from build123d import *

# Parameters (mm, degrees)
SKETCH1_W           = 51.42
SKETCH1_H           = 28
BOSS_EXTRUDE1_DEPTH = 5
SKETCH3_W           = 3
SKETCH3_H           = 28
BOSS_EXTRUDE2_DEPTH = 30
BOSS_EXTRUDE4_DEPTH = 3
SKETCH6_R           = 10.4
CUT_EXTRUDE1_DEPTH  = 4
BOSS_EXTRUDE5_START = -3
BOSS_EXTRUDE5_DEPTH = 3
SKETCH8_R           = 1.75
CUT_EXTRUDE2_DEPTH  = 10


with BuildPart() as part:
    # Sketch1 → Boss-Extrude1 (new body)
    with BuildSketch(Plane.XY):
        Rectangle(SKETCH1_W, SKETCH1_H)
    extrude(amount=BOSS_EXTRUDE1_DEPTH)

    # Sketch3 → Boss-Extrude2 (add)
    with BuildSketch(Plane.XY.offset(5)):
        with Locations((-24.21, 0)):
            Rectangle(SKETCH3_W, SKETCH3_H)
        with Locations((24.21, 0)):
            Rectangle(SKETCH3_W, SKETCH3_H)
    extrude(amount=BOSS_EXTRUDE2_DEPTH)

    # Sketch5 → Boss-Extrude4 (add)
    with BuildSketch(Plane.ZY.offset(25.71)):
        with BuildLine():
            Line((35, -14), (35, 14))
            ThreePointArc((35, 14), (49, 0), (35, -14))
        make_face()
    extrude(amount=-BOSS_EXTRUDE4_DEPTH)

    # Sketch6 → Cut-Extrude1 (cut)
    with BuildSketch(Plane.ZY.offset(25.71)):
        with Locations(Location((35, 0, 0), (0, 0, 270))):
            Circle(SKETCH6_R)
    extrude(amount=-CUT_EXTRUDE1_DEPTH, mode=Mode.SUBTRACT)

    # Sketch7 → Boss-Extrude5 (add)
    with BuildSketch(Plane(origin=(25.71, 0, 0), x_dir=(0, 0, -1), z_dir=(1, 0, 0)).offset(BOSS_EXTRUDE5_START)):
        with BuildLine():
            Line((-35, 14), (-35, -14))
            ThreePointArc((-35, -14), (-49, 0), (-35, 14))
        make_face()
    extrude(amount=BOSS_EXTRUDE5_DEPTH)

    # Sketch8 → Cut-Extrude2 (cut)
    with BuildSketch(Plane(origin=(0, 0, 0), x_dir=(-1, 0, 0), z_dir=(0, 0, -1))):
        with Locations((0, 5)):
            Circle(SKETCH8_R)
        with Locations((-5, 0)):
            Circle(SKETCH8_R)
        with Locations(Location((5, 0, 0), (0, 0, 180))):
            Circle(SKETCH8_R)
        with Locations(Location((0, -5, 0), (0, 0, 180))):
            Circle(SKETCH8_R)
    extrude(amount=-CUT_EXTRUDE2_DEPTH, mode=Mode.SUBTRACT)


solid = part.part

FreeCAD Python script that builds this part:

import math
import FreeCAD as App
import Part
import Sketcher
Q = App.Units.Quantity


def add_polygon(sketch, points):
    """Adds a closed chain of lines whose ends are joined by coincident constraints."""
    first, n = sketch.GeometryCount, len(points)
    for a, b in zip(points, points[1:] + points[:1]):
        sketch.addGeometry(Part.LineSegment(App.Vector(*a, 0), App.Vector(*b, 0)), False)
    for i in range(n):
        sketch.addConstraint(Sketcher.Constraint("Coincident", first + i, 2, first + (i + 1) % n, 1))

doc = App.newDocument("Part")
params = doc.addObject("Spreadsheet::Sheet", "Params")
for row, (alias, value) in enumerate([
    ("sketch1_height", "28 mm"),
    ("sketch1_width", "51.42 mm"),
    ("pad1_length", "5 mm"),
    ("sketch2_width", "3 mm"),
    ("sketch2_height", "28 mm"),
    ("pad2_length", "30 mm"),
    ("sketch3_radius", "14 mm"),
    ("pad3_length", "3 mm"),
    ("sketch4_diameter", "20.8 mm"),
    ("pocket1_length", "4 mm"),
    ("sketch5_radius", "14 mm"),
    ("pad4_length", "3 mm"),
    ("sketch6_diameter", "3.5 mm"),
    ("pocket2_length", "10 mm"),
], start=1):
    params.set(f"A{row}", alias)
    params.set(f"B{row}", "=" + value)
    params.setAlias(f"B{row}", alias)

body = doc.addObject("PartDesign::Body", "Body")

sketch1 = body.newObject("Sketcher::SketchObject", "Sketch")
sketch1.AttachmentSupport = (doc.getObject("XY_Plane"), [""])
sketch1.MapMode = "FlatFace"
add_polygon(sketch1, [(-26, 14), (-26, -14), (26, -14), (26, 14)])
sketch1.addConstraint([
    Sketcher.Constraint("Vertical", 0),
    Sketcher.Constraint("Horizontal", 1),
    Sketcher.Constraint("Vertical", 2),
    Sketcher.Constraint("Horizontal", 3),
    Sketcher.Constraint("Symmetric", 0, 2, 2, 2, -1, 1),
    Sketcher.Constraint("DistanceY", 0, 2, 0, 1, Q("28 mm")),
    Sketcher.Constraint("DistanceX", 1, 1, 1, 2, Q("51.42 mm")),
])
sketch1.setExpression("Constraints[9]", "Params.sketch1_height")
sketch1.setExpression("Constraints[10]", "Params.sketch1_width")
pad1 = body.newObject("PartDesign::Pad", "Pad")
pad1.Profile = sketch1
pad1.setExpression("Length", "Params.pad1_length")

sketch2 = body.newObject("Sketcher::SketchObject", "Sketch001")
sketch2.AttachmentSupport = (doc.getObject("XY_Plane"), [""])
sketch2.MapMode = "FlatFace"
sketch2.AttachmentOffset = App.Placement(App.Vector(0, 0, 5), App.Rotation())
add_polygon(sketch2, [(-25.7, 14), (-25.7, -14), (-22.7, -14), (-22.7, 14)])
add_polygon(sketch2, [(22.7, 14), (22.7, -14), (25.7, -14), (25.7, 14)])
sketch2.addConstraint([
    Sketcher.Constraint("Vertical", 0),
    Sketcher.Constraint("Horizontal", 1),
    Sketcher.Constraint("Vertical", 2),
    Sketcher.Constraint("Horizontal", 3),
    Sketcher.Constraint("Vertical", 4),
    Sketcher.Constraint("Horizontal", 5),
    Sketcher.Constraint("Vertical", 6),
    Sketcher.Constraint("Horizontal", 7),
    Sketcher.Constraint("Symmetric", 2, 2, 4, 2, -1, 1),
    Sketcher.Constraint("Symmetric", 0, 2, 6, 2, -1, 1),
    Sketcher.Constraint("Horizontal", 1, 2, 4, 2),
    Sketcher.Constraint("DistanceX", 1, 1, 1, 2, Q("3 mm")),
    Sketcher.Constraint("DistanceY", 0, 2, 0, 1, Q("28 mm")),
    Sketcher.Constraint("DistanceX", 0, 2, -1, 1, Q("25.71 mm")),
])
sketch2.setExpression("Constraints[19]", "Params.sketch2_width")
sketch2.setExpression("Constraints[20]", "Params.sketch2_height")
pad2 = body.newObject("PartDesign::Pad", "Pad001")
pad2.Profile = sketch2
pad2.setExpression("Length", "Params.pad2_length")

sketch3 = body.newObject("Sketcher::SketchObject", "Sketch002")
sketch3.AttachmentSupport = (doc.getObject("YZ_Plane"), [""])
sketch3.MapMode = "FlatFace"
sketch3.AttachmentOffset = App.Placement(App.Vector(0, 0, -25.71), App.Rotation())
sketch3.addGeometry([
    Part.LineSegment(App.Vector(14, 35, 0), App.Vector(-14, 35, 0)),
    Part.ArcOfCircle(Part.Circle(App.Vector(0, 35, 0), App.Vector(0, 0, 1), 14), math.radians(0), math.radians(180)),
], False)
sketch3.addConstraint([
    Sketcher.Constraint("Coincident", 0, 1, 1, 1),
    Sketcher.Constraint("Coincident", 1, 2, 0, 2),
    Sketcher.Constraint("Horizontal", 0),
    Sketcher.Constraint("PointOnObject", 1, 3, -2),
    Sketcher.Constraint("Horizontal", 1, 3, 0, 1),
    Sketcher.Constraint("Radius", 1, Q("14 mm")),
    Sketcher.Constraint("DistanceY", -1, 1, 1, 3, Q("35 mm")),
])
sketch3.setExpression("Constraints[5]", "Params.sketch3_radius")
pad3 = body.newObject("PartDesign::Pad", "Pad002")
pad3.Profile = sketch3
pad3.setExpression("Length", "Params.pad3_length")

sketch4 = body.newObject("Sketcher::SketchObject", "Sketch003")
sketch4.AttachmentSupport = (doc.getObject("YZ_Plane"), [""])
sketch4.MapMode = "FlatFace"
sketch4.AttachmentOffset = App.Placement(App.Vector(0, 0, -25.71), App.Rotation())
sketch4.addGeometry(Part.Circle(App.Vector(0, 35, 0), App.Vector(0, 0, 1), 10), False)
sketch4.addConstraint([
    Sketcher.Constraint("PointOnObject", 0, 3, -2),
    Sketcher.Constraint("Diameter", 0, Q("20.8 mm")),
    Sketcher.Constraint("DistanceY", -1, 1, 0, 3, Q("35 mm")),
])
sketch4.setExpression("Constraints[1]", "Params.sketch4_diameter")
pocket1 = body.newObject("PartDesign::Pocket", "Pocket")
pocket1.Profile = sketch4
pocket1.setExpression("Length", "Params.pocket1_length")
pocket1.Reversed = True

sketch5 = body.newObject("Sketcher::SketchObject", "Sketch004")
sketch5.AttachmentSupport = (doc.getObject("YZ_Plane"), [""])
sketch5.MapMode = "FlatFace"
sketch5.AttachmentOffset = App.Placement(App.Vector(0, 0, 22.71), App.Rotation())
sketch5.addGeometry([
    Part.LineSegment(App.Vector(-14, 35, 0), App.Vector(14, 35, 0)),
    Part.ArcOfCircle(Part.Circle(App.Vector(0, 35, 0), App.Vector(0, 0, 1), 14), math.radians(0), math.radians(180)),
], False)
sketch5.addConstraint([
    Sketcher.Constraint("Coincident", 0, 1, 1, 2),
    Sketcher.Constraint("Coincident", 1, 1, 0, 2),
    Sketcher.Constraint("Horizontal", 0),
    Sketcher.Constraint("PointOnObject", 1, 3, -2),
    Sketcher.Constraint("Horizontal", 1, 3, 0, 1),
    Sketcher.Constraint("Radius", 1, Q("14 mm")),
    Sketcher.Constraint("DistanceY", -1, 1, 1, 3, Q("35 mm")),
])
sketch5.setExpression("Constraints[5]", "Params.sketch5_radius")
pad4 = body.newObject("PartDesign::Pad", "Pad003")
pad4.Profile = sketch5
pad4.setExpression("Length", "Params.pad4_length")

sketch6 = body.newObject("Sketcher::SketchObject", "Sketch005")
sketch6.AttachmentSupport = (doc.getObject("XY_Plane"), [""])
sketch6.MapMode = "FlatFace"
sketch6.addGeometry([
    Part.Circle(App.Vector(0, 5, 0), App.Vector(0, 0, 1), 1.8),
    Part.Circle(App.Vector(5, 0, 0), App.Vector(0, 0, 1), 1.8),
    Part.Circle(App.Vector(-5, 0, 0), App.Vector(0, 0, 1), 1.8),
    Part.Circle(App.Vector(0, -5, 0), App.Vector(0, 0, 1), 1.8),
], False)
sketch6.addConstraint([
    Sketcher.Constraint("Equal", 0, 1),
    Sketcher.Constraint("Equal", 1, 2),
    Sketcher.Constraint("Equal", 2, 3),
    Sketcher.Constraint("Symmetric", 1, 3, 2, 3, -1, 1),
    Sketcher.Constraint("Symmetric", 0, 3, 3, 3, -1, 1),
    Sketcher.Constraint("PointOnObject", 0, 3, -2),
    Sketcher.Constraint("PointOnObject", 1, 3, -1),
    Sketcher.Constraint("Diameter", 0, Q("3.5 mm")),
    Sketcher.Constraint("DistanceY", -1, 1, 0, 3, Q("5 mm")),
    Sketcher.Constraint("DistanceX", -1, 1, 1, 3, Q("5 mm")),
])
sketch6.setExpression("Constraints[7]", "Params.sketch6_diameter")
pocket2 = body.newObject("PartDesign::Pocket", "Pocket001")
pocket2.Profile = sketch6
pocket2.setExpression("Length", "Params.pocket2_length")
pocket2.Reversed = True

doc.recompute()
